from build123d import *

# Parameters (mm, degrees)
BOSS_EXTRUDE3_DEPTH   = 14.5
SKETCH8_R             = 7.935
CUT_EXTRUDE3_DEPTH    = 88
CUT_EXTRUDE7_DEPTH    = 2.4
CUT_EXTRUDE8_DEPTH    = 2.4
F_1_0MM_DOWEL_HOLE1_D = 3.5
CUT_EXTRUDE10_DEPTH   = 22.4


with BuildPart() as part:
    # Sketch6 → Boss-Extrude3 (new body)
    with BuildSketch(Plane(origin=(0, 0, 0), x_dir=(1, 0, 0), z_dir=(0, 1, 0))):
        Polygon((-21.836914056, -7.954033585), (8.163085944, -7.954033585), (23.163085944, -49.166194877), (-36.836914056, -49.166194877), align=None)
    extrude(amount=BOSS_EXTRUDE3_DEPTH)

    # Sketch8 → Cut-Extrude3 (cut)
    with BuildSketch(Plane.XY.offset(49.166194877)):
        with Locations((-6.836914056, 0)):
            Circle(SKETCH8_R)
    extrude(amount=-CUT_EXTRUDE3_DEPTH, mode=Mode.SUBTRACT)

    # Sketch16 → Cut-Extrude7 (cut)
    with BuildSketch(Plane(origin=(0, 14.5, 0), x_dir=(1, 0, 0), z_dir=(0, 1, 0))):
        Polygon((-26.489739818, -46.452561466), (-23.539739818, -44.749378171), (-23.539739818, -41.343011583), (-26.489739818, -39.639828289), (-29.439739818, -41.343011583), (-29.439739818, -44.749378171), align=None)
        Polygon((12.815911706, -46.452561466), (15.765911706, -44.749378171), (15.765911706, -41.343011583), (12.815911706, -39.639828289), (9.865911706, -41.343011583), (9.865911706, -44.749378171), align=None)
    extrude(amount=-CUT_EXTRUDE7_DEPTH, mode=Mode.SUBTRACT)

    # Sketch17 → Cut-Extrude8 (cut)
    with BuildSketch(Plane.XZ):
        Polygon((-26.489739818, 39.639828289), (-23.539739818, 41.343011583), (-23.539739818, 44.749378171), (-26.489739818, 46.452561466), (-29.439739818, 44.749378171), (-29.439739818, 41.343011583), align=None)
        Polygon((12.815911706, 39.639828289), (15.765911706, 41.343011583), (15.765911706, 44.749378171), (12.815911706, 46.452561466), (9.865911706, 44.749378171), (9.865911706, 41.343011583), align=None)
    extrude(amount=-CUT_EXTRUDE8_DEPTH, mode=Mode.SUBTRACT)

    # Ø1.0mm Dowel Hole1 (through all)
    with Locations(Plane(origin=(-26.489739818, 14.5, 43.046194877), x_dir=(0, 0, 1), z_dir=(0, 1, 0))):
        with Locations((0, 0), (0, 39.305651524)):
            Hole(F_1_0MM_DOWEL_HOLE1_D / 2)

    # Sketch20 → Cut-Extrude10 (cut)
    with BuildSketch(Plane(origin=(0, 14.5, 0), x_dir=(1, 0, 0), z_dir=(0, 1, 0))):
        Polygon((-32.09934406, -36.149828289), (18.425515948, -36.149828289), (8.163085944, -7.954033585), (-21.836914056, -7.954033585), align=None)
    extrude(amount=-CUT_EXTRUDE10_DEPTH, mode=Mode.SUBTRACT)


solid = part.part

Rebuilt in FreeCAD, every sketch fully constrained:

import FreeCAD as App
import Part
import Sketcher

V = App.Vector
Q = App.Units.Quantity

doc = App.newDocument("Part")
body = doc.addObject("PartDesign::Body", "Body")

sketch1 = body.newObject("Sketcher::SketchObject", "Sketch")
sketch1.AttachmentSupport = (doc.getObject("XZ_Plane"), [""])
sketch1.MapMode = "FlatFace"
sketch1.addGeometry(Part.LineSegment(V(8, 8, 0), V(-22, 8, 0)), False)
sketch1.addGeometry(Part.LineSegment(V(-22, 8, 0), V(-37, 49, 0)), False)
sketch1.addGeometry(Part.LineSegment(V(-37, 49, 0), V(23, 49, 0)), False)
sketch1.addGeometry(Part.LineSegment(V(23, 49, 0), V(8, 8, 0)), False)
sketch1.addConstraint(Sketcher.Constraint("Coincident", 0, 2, 1, 1))
sketch1.addConstraint(Sketcher.Constraint("Coincident", 1, 2, 2, 1))
sketch1.addConstraint(Sketcher.Constraint("Coincident", 2, 2, 3, 1))
sketch1.addConstraint(Sketcher.Constraint("Coincident", 3, 2, 0, 1))
sketch1.addConstraint(Sketcher.Constraint("Horizontal", 0))
sketch1.addConstraint(Sketcher.Constraint("Horizontal", 2))
sketch1.addConstraint(Sketcher.Constraint("Equal", 1, 3))
sketch1.addConstraint(Sketcher.Constraint("DistanceX", 0, 2, 0, 1, Q("30 mm")))
sketch1.addConstraint(Sketcher.Constraint("DistanceX", 2, 1, 2, 2, Q("60 mm")))
sketch1.addConstraint(Sketcher.Constraint("Angle", 1, Q("110 deg")))
sketch1.addConstraint(Sketcher.Constraint("DistanceX", 0, 2, -1, 1, Q("21.836914 mm")))
sketch1.addConstraint(Sketcher.Constraint("DistanceY", -1, 1, 0, 2, Q("7.954034 mm")))
pad1 = body.newObject("PartDesign::Pad", "Pad")
pad1.Profile = sketch1
pad1.Length = 14.5
pad1.Reversed = True

sketch2 = body.newObject("Sketcher::SketchObject", "Sketch001")
sketch2.AttachmentSupport = (doc.getObject("XY_Plane"), [""])
sketch2.MapMode = "FlatFace"
sketch2.AttachmentOffset = App.Placement(V(0, 0, 49.166195), App.Rotation())
sketch2.addGeometry(Part.Circle(V(-7, 0, 0), V(0, 0, 1), 8), False)
sketch2.addConstraint(Sketcher.Constraint("PointOnObject", 0, 3, -1))
sketch2.addConstraint(Sketcher.Constraint("Diameter", 0, Q("15.87 mm")))
sketch2.addConstraint(Sketcher.Constraint("DistanceX", 0, 3, -1, 1, Q("6.836914 mm")))
pocket1 = body.newObject("PartDesign::Pocket", "Pocket")
pocket1.Profile = sketch2
pocket1.Length = 88

sketch3 = body.newObject("Sketcher::SketchObject", "Sketch002")
sketch3.AttachmentSupport = (doc.getObject("XZ_Plane"), [""])
sketch3.MapMode = "FlatFace"
sketch3.AttachmentOffset = App.Placement(V(0, 0, -14.5), App.Rotation())
sketch3.addGeometry(Part.LineSegment(V(-26.5, 46.5, 0), V(-23.5, 44.7, 0)), False)
sketch3.addGeometry(Part.LineSegment(V(-23.5, 44.7, 0), V(-23.5, 41.3, 0)), False)
sketch3.addGeometry(Part.LineSegment(V(-23.5, 41.3, 0), V(-26.5, 39.6, 0)), False)
sketch3.addGeometry(Part.LineSegment(V(-26.5, 39.6, 0), V(-29.4, 41.3, 0)), False)
sketch3.addGeometry(Part.LineSegment(V(-29.4, 41.3, 0), V(-29.4, 44.7, 0)), False)
sketch3.addGeometry(Part.LineSegment(V(-29.4, 44.7, 0), V(-26.5, 46.5, 0)), False)
sketch3.addGeometry(Part.LineSegment(V(12.8, 46.5, 0), V(15.8, 44.7, 0)), False)
sketch3.addGeometry(Part.LineSegment(V(15.8, 44.7, 0), V(15.8, 41.3, 0)), False)
sketch3.addGeometry(Part.LineSegment(V(15.8, 41.3, 0), V(12.8, 39.6, 0)), False)
sketch3.addGeometry(Part.LineSegment(V(12.8, 39.6, 0), V(9.9, 41.3, 0)), False)
sketch3.addGeometry(Part.LineSegment(V(9.9, 41.3, 0), V(9.9, 44.7, 0)), False)
sketch3.addGeometry(Part.LineSegment(V(9.9, 44.7, 0), V(12.8, 46.5, 0)), False)
sketch3.addConstraint(Sketcher.Constraint("Coincident", 0, 2, 1, 1))
sketch3.addConstraint(Sketcher.Constraint("Coincident", 1, 2, 2, 1))
sketch3.addConstraint(Sketcher.Constraint("Coincident", 2, 2, 3, 1))
sketch3.addConstraint(Sketcher.Constraint("Coincident", 3, 2, 4, 1))
sketch3.addConstraint(Sketcher.Constraint("Coincident", 4, 2, 5, 1))
sketch3.addConstraint(Sketcher.Constraint("Coincident", 5, 2, 0, 1))
sketch3.addConstraint(Sketcher.Constraint("Coincident", 6, 2, 7, 1))
sketch3.addConstraint(Sketcher.Constraint("Coincident", 7, 2, 8, 1))
sketch3.addConstraint(Sketcher.Constraint("Coincident", 8, 2, 9, 1))
sketch3.addConstraint(Sketcher.Constraint("Coincident", 9, 2, 10, 1))
sketch3.addConstraint(Sketcher.Constraint("Coincident", 10, 2, 11, 1))
sketch3.addConstraint(Sketcher.Constraint("Coincident", 11, 2, 6, 1))
sketch3.addConstraint(Sketcher.Constraint("Vertical", 1))
sketch3.addConstraint(Sketcher.Constraint("Vertical", 4))
sketch3.addConstraint(Sketcher.Constraint("Vertical", 7))
sketch3.addConstraint(Sketcher.Constraint("Vertical", 10))
sketch3.addConstraint(Sketcher.Constraint("Parallel", 0, 3))
sketch3.addConstraint(Sketcher.Constraint("Parallel", 2, 5))
sketch3.addConstraint(Sketcher.Constraint("Parallel", 3, 6))
sketch3.addConstraint(Sketcher.Constraint("Parallel", 5, 8))
sketch3.addConstraint(Sketcher.Constraint("Parallel", 6, 9))
sketch3.addConstraint(Sketcher.Constraint("Parallel", 8, 11))
sketch3.addConstraint(Sketcher.Constraint("Horizontal", 1, 2, 3, 2))
sketch3.addConstraint(Sketcher.Constraint("Horizontal", 0, 2, 4, 2))
sketch3.addConstraint(Sketcher.Constraint("Horizontal", 4, 2, 6, 2))
sketch3.addConstraint(Sketcher.Constraint("Horizontal", 3, 2, 7, 2))
sketch3.addConstraint(Sketcher.Constraint("Horizontal", 2, 2, 8, 2))
sketch3.addConstraint(Sketcher.Constraint("Horizontal", 7, 2, 9, 2))
sketch3.addConstraint(Sketcher.Constraint("Horizontal", 6, 2, 10, 2))
sketch3.addConstraint(Sketcher.Constraint("Vertical", 2, 2, 5, 2))
sketch3.addConstraint(Sketcher.Constraint("Angle", 0, Q("-30 deg")))
sketch3.addConstraint(Sketcher.Constraint("DistanceX", 3, 2, 1, 2, Q("5.9 mm")))
sketch3.addConstraint(Sketcher.Constraint("DistanceY", 1, 2, 1, 1, Q("3.406367 mm")))
sketch3.addConstraint(Sketcher.Constraint("DistanceX", 0, 2, -1, 1, Q("23.53974 mm")))
sketch3.addConstraint(Sketcher.Constraint("DistanceY", -1, 1, 0, 2, Q("44.749378 mm")))
sketch3.addConstraint(Sketcher.Constraint("DistanceX", -1, 1, 6, 2, Q("15.765912 mm")))
pocket2 = body.newObject("PartDesign::Pocket", "Pocket001")
pocket2.Profile = sketch3
pocket2.Length = 2.4
pocket2.Reversed = True

sketch4 = body.newObject("Sketcher::SketchObject", "Sketch003")
sketch4.AttachmentSupport = (doc.getObject("XZ_Plane"), [""])
sketch4.MapMode = "FlatFace"
sketch4.addGeometry(Part.LineSegment(V(-26.5, 39.6, 0), V(-23.5, 41.3, 0)), False)
sketch4.addGeometry(Part.LineSegment(V(-23.5, 41.3, 0), V(-23.5, 44.7, 0)), False)
sketch4.addGeometry(Part.LineSegment(V(-23.5, 44.7, 0), V(-26.5, 46.5, 0)), False)
sketch4.addGeometry(Part.LineSegment(V(-26.5, 46.5, 0), V(-29.4, 44.7, 0)), False)
sketch4.addGeometry(Part.LineSegment(V(-29.4, 44.7, 0), V(-29.4, 41.3, 0)), False)
sketch4.addGeometry(Part.LineSegment(V(-29.4, 41.3, 0), V(-26.5, 39.6, 0)), False)
sketch4.addGeometry(Part.LineSegment(V(12.8, 39.6, 0), V(15.8, 41.3, 0)), False)
sketch4.addGeometry(Part.LineSegment(V(15.8, 41.3, 0), V(15.8, 44.7, 0)), False)
sketch4.addGeometry(Part.LineSegment(V(15.8, 44.7, 0), V(12.8, 46.5, 0)), False)
sketch4.addGeometry(Part.LineSegment(V(12.8, 46.5, 0), V(9.9, 44.7, 0)), False)
sketch4.addGeometry(Part.LineSegment(V(9.9, 44.7, 0), V(9.9, 41.3, 0)), False)
sketch4.addGeometry(Part.LineSegment(V(9.9, 41.3, 0), V(12.8, 39.6, 0)), False)
sketch4.addConstraint(Sketcher.Constraint("Coincident", 0, 2, 1, 1))
sketch4.addConstraint(Sketcher.Constraint("Coincident", 1, 2, 2, 1))
sketch4.addConstraint(Sketcher.Constraint("Coincident", 2, 2, 3, 1))
sketch4.addConstraint(Sketcher.Constraint("Coincident", 3, 2, 4, 1))
sketch4.addConstraint(Sketcher.Constraint("Coincident", 4, 2, 5, 1))
sketch4.addConstraint(Sketcher.Constraint("Coincident", 5, 2, 0, 1))
sketch4.addConstraint(Sketcher.Constraint("Coincident", 6, 2, 7, 1))
sketch4.addConstraint(Sketcher.Constraint("Coincident", 7, 2, 8, 1))
sketch4.addConstraint(Sketcher.Constraint("Coincident", 8, 2, 9, 1))
sketch4.addConstraint(Sketcher.Constraint("Coincident", 9, 2, 10, 1))
sketch4.addConstraint(Sketcher.Constraint("Coincident", 10, 2, 11, 1))
sketch4.addConstraint(Sketcher.Constraint("Coincident", 11, 2, 6, 1))
sketch4.addConstraint(Sketcher.Constraint("Vertical", 1))
sketch4.addConstraint(Sketcher.Constraint("Vertical", 4))
sketch4.addConstraint(Sketcher.Constraint("Vertical", 7))
sketch4.addConstraint(Sketcher.Constraint("Vertical", 10))
sketch4.addConstraint(Sketcher.Constraint("Parallel", 0, 3))
sketch4.addConstraint(Sketcher.Constraint("Parallel", 2, 5))
sketch4.addConstraint(Sketcher.Constraint("Parallel", 3, 6))
sketch4.addConstraint(Sketcher.Constraint("Parallel", 5, 8))
sketch4.addConstraint(Sketcher.Constraint("Parallel", 6, 9))
sketch4.addConstraint(Sketcher.Constraint("Parallel", 8, 11))
sketch4.addConstraint(Sketcher.Constraint("Horizontal", 1, 2, 3, 2))
sketch4.addConstraint(Sketcher.Constraint("Horizontal", 0, 2, 4, 2))
sketch4.addConstraint(Sketcher.Constraint("Horizontal", 4, 2, 6, 2))
sketch4.addConstraint(Sketcher.Constraint("Horizontal", 3, 2, 7, 2))
sketch4.addConstraint(Sketcher.Constraint("Horizontal", 2, 2, 8, 2))
sketch4.addConstraint(Sketcher.Constraint("Horizontal", 7, 2, 9, 2))
sketch4.addConstraint(Sketcher.Constraint("Horizontal", 6, 2, 10, 2))
sketch4.addConstraint(Sketcher.Constraint("Vertical", 2, 2, 5, 2))
sketch4.addConstraint(Sketcher.Constraint("Angle", 0, Q("30 deg")))
sketch4.addConstraint(Sketcher.Constraint("DistanceX", 3, 2, 1, 2, Q("5.9 mm")))
sketch4.addConstraint(Sketcher.Constraint("DistanceY", 1, 1, 1, 2, Q("3.406367 mm")))
sketch4.addConstraint(Sketcher.Constraint("DistanceX", 0, 2, -1, 1, Q("23.53974 mm")))
sketch4.addConstraint(Sketcher.Constraint("DistanceY", -1, 1, 0, 2, Q("41.343012 mm")))
sketch4.addConstraint(Sketcher.Constraint("DistanceX", -1, 1, 6, 2, Q("15.765912 mm")))
pocket3 = body.newObject("PartDesign::Pocket", "Pocket002")
pocket3.Profile = sketch4
pocket3.Length = 2.4

sketch5 = body.newObject("Sketcher::SketchObject", "Sketch004")
sketch5.AttachmentSupport = (doc.getObject("XZ_Plane"), [""])
sketch5.MapMode = "FlatFace"
sketch5.AttachmentOffset = App.Placement(V(0, 0, -14.5), App.Rotation())
sketch5.addGeometry(Part.Circle(V(-26.5, 43, 0), V(0, 0, 1), 1.8), False)
sketch5.addGeometry(Part.Circle(V(12.8, 43, 0), V(0, 0, 1), 1.8), False)
sketch5.addConstraint(Sketcher.Constraint("Equal", 0, 1))
sketch5.addConstraint(Sketcher.Constraint("Horizontal", 0, 3, 1, 3))
sketch5.addConstraint(Sketcher.Constraint("Diameter", 0, Q("3.5 mm")))
sketch5.addConstraint(Sketcher.Constraint("DistanceX", 0, 3, -1, 1, Q("26.48974 mm")))
sketch5.addConstraint(Sketcher.Constraint("DistanceX", -1, 1, 1, 3, Q("12.815912 mm")))
sketch5.addConstraint(Sketcher.Constraint("DistanceY", -1, 1, 0, 3, Q("43.046195 mm")))
doc.recompute()
hole = body.newObject("PartDesign::Hole", "Hole")
hole.Profile = sketch5
hole.ThreadType = "None"
hole.Diameter = 3.5
hole.DepthType = "ThroughAll"
hole.Reversed = True

sketch6 = body.newObject("Sketcher::SketchObject", "Sketch005")
sketch6.AttachmentSupport = (doc.getObject("XZ_Plane"), [""])
sketch6.MapMode = "FlatFace"
sketch6.AttachmentOffset = App.Placement(V(0, 0, -14.5), App.Rotation())
sketch6.addGeometry(Part.LineSegment(V(-32, 36, 0), V(18, 36, 0)), False)
sketch6.addGeometry(Part.LineSegment(V(18, 36, 0), V(8, 8, 0)), False)
sketch6.addGeometry(Part.LineSegment(V(8, 8, 0), V(-22, 8, 0)), False)
sketch6.addGeometry(Part.LineSegment(V(-22, 8, 0), V(-32, 36, 0)), False)
sketch6.addConstraint(Sketcher.Constraint("Coincident", 0, 2, 1, 1))
sketch6.addConstraint(Sketcher.Constraint("Coincident", 1, 2, 2, 1))
sketch6.addConstraint(Sketcher.Constraint("Coincident", 2, 2, 3, 1))
sketch6.addConstraint(Sketcher.Constraint("Coincident", 3, 2, 0, 1))
sketch6.addConstraint(Sketcher.Constraint("Horizontal", 0))
sketch6.addConstraint(Sketcher.Constraint("Horizontal", 2))
sketch6.addConstraint(Sketcher.Constraint("Equal", 1, 3))
sketch6.addConstraint(Sketcher.Constraint("DistanceX", 2, 2, 2, 1, Q("30 mm")))
sketch6.addConstraint(Sketcher.Constraint("Angle", 1, Q("-110 deg")))
sketch6.addConstraint(Sketcher.Constraint("DistanceX", 0, 1, 0, 2, Q("50.52486 mm")))
sketch6.addConstraint(Sketcher.Constraint("DistanceY", -1, 1, 0, 2, Q("36.149828 mm")))
sketch6.addConstraint(Sketcher.Constraint("DistanceX", -1, 1, 0, 2, Q("18.425516 mm")))
pocket4 = body.newObject("PartDesign::Pocket", "Pocket003")
pocket4.Profile = sketch6
pocket4.Length = 22.4
pocket4.Reversed = True

doc.recompute()
